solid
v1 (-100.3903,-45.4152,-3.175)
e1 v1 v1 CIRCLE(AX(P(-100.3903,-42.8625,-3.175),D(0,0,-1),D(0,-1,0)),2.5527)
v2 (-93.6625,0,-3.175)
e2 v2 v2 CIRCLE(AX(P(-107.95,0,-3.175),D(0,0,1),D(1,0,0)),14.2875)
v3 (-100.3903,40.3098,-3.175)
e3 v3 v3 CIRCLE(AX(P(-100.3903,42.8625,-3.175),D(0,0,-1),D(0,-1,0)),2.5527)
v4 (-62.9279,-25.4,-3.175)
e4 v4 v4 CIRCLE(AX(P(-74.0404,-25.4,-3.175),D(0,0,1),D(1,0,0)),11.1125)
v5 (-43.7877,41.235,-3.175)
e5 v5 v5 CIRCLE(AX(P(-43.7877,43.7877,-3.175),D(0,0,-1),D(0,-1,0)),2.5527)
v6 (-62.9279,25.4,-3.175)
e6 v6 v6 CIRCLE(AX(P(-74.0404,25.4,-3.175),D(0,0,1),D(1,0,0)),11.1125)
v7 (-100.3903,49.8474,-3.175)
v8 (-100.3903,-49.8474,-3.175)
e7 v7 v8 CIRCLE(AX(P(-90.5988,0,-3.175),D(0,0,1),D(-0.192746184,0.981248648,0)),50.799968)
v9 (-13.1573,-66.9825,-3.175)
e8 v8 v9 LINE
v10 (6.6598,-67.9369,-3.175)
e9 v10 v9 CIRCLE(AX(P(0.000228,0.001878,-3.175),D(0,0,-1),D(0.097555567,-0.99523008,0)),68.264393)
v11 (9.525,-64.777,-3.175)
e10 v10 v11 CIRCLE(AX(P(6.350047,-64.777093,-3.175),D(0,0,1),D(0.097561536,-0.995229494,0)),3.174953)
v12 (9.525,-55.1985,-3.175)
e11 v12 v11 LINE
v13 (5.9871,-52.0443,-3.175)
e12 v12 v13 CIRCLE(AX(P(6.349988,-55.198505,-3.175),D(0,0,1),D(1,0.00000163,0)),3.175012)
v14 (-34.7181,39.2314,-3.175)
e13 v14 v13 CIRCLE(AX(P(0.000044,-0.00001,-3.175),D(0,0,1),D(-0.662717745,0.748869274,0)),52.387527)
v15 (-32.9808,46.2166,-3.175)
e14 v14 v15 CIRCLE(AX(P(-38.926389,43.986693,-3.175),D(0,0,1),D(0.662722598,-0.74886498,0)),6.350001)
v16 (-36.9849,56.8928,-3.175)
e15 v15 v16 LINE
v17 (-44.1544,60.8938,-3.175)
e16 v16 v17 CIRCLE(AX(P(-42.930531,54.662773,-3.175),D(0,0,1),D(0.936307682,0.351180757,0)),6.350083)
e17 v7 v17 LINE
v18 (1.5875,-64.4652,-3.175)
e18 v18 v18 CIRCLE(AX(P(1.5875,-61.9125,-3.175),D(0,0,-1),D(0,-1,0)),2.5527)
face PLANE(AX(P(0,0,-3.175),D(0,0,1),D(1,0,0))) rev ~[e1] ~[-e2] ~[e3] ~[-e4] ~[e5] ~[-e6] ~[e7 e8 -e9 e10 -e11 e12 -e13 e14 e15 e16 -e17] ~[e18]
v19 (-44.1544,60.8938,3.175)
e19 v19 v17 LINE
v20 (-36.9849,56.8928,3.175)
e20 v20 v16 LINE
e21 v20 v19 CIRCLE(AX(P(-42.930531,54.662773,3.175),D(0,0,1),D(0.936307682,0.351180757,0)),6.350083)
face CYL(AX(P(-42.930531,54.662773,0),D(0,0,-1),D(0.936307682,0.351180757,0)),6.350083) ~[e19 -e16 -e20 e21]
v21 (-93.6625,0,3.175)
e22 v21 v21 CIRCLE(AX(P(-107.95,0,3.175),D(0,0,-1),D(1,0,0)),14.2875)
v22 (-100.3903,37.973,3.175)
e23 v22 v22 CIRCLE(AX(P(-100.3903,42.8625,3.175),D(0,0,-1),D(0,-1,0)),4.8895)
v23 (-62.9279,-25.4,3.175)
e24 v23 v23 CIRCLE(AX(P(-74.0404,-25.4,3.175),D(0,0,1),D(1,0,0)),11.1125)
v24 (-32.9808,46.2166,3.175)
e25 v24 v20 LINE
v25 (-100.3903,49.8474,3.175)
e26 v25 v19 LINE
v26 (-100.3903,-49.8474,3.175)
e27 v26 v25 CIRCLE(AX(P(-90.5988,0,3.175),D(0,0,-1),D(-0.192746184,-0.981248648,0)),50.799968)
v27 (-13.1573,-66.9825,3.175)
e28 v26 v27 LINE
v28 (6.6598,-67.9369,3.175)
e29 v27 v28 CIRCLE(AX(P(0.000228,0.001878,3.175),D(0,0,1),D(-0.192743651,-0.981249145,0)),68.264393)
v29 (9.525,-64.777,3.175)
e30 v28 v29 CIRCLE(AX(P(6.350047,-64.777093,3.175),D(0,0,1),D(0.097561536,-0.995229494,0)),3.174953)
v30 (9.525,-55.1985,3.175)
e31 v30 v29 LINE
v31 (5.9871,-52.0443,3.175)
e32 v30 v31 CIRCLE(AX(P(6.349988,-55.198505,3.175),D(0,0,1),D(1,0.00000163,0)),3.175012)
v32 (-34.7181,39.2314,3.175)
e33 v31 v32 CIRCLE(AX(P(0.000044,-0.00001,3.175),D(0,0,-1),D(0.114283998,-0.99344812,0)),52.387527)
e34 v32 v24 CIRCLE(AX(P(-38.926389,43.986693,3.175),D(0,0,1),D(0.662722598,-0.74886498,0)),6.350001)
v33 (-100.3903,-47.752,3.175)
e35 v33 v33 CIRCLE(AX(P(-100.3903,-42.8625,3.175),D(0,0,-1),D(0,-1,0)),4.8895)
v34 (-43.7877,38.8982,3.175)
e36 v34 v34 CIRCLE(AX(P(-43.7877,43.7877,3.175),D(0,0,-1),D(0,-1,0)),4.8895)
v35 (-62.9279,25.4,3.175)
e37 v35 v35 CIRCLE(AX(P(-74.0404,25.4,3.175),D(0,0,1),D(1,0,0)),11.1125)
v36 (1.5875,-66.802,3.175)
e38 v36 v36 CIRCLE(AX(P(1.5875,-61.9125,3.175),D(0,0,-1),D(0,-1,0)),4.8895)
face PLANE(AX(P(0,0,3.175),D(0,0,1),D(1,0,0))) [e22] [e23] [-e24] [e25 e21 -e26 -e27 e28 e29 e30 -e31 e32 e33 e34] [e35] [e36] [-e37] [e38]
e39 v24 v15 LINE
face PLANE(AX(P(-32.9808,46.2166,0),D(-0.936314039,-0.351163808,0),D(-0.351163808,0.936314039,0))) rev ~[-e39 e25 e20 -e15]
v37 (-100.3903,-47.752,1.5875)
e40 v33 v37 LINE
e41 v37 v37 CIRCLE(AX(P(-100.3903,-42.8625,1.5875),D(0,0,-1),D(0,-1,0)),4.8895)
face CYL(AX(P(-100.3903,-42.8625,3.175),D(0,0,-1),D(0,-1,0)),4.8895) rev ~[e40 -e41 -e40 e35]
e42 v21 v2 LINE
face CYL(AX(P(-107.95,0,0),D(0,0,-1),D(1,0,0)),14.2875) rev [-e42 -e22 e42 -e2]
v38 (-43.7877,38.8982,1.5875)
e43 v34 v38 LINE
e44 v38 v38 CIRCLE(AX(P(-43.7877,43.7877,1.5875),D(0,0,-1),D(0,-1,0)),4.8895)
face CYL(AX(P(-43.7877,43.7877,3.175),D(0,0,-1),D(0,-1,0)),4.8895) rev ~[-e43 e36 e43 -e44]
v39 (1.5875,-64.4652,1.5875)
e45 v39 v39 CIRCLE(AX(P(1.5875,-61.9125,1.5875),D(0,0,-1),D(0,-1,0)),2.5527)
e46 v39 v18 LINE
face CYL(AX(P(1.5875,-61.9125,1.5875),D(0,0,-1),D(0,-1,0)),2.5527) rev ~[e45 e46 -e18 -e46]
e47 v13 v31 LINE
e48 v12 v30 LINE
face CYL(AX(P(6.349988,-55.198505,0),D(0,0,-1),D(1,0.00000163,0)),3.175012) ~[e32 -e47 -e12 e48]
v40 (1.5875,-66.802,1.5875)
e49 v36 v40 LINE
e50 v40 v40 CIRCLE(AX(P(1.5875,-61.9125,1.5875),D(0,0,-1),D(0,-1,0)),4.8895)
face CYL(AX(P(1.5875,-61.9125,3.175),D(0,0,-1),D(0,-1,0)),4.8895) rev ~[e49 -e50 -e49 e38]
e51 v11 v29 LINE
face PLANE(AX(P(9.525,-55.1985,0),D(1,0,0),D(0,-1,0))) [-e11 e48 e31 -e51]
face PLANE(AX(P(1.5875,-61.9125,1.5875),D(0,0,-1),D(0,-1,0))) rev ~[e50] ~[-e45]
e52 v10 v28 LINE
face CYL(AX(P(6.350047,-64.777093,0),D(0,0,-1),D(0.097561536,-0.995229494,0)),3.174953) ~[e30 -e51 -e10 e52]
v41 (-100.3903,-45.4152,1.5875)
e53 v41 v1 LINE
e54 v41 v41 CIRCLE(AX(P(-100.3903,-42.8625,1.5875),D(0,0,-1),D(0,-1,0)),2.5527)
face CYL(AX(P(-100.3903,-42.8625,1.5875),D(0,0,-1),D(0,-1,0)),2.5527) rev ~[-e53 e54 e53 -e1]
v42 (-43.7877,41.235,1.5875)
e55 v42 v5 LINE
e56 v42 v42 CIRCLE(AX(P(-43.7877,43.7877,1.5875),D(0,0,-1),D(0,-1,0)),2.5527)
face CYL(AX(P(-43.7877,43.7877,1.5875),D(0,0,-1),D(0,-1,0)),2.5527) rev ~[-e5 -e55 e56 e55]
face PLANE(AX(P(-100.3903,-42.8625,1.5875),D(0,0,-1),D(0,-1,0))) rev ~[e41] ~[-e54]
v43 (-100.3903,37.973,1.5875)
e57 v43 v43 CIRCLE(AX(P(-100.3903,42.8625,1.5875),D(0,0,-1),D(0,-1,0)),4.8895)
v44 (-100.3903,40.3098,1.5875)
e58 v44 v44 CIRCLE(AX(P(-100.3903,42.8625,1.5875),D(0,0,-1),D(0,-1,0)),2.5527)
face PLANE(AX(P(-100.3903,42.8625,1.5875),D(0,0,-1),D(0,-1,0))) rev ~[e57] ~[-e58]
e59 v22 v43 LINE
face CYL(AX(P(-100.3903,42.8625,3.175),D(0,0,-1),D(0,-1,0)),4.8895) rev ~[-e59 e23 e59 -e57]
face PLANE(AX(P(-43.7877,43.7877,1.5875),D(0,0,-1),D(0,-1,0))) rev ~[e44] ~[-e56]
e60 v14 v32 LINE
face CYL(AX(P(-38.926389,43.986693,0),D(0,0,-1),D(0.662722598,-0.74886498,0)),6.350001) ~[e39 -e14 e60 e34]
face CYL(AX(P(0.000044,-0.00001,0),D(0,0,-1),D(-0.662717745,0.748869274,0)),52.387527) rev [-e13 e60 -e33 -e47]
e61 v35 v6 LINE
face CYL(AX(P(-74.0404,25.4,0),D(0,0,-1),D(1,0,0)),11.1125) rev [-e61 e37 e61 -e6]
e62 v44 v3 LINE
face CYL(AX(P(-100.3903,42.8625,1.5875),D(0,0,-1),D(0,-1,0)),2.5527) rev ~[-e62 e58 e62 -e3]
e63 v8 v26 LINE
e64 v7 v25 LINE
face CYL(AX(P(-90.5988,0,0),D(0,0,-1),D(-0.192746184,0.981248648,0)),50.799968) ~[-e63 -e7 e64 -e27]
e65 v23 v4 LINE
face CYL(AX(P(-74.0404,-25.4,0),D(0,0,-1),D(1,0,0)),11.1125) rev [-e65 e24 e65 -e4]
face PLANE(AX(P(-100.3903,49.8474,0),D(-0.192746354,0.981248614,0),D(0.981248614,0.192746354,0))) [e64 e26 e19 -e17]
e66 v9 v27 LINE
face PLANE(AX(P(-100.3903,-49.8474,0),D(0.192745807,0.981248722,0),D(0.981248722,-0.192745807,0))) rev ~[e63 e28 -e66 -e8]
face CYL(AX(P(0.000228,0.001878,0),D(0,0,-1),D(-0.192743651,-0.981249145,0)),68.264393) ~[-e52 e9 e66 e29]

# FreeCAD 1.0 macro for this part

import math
import FreeCAD as App
import Part
import Sketcher
from FreeCAD import Vector
Q = App.Units.Quantity

doc = App.newDocument("Part")
body = doc.addObject("PartDesign::Body", "Body")

# Sketch on XY plane
sketch1 = body.newObject("Sketcher::SketchObject", "Sketch")
sketch1.AttachmentSupport = (doc.getObject("XY_Plane"), [""])
sketch1.MapMode = "FlatFace"
sketch1.addGeometry([
    Part.LineSegment(Vector(-44.2, 60.9, 0), Vector(-100.4, 49.8, 0)),  # 0
    Part.ArcOfCircle(Part.Circle(Vector(-90.6, 0, 0), Vector(0, 0, 1), 50.8), math.radians(101), math.radians(259)),  # 1
    Part.LineSegment(Vector(-100.4, -49.8, 0), Vector(-13.2, -67, 0)),  # 2
    Part.ArcOfCircle(Part.Circle(Vector(0, 0, 0), Vector(0, 0, 1), 68.3), math.radians(-101.11), math.radians(-84.4)),  # 3
    Part.ArcOfCircle(Part.Circle(Vector(6.3, -64.8, 0), Vector(0, 0, 1), 3.2), math.radians(-84), math.radians(0)),  # 4
    Part.LineSegment(Vector(9.5, -64.8, 0), Vector(9.5, -55.2, 0)),  # 5
    Part.ArcOfCircle(Part.Circle(Vector(6.3, -55.2, 0), Vector(0, 0, 1), 3.2), math.radians(0), math.radians(97)),  # 6
    Part.ArcOfCircle(Part.Circle(Vector(0, 0, 0), Vector(0, 0, 1), 52.4), math.radians(132), math.radians(277)),  # 7
    Part.ArcOfCircle(Part.Circle(Vector(-38.9, 44, 0), Vector(0, 0, 1), 6.4), math.radians(-48), math.radians(21)),  # 8
    Part.LineSegment(Vector(-33, 46.2, 0), Vector(-37, 56.9, 0)),  # 9
    Part.ArcOfCircle(Part.Circle(Vector(-42.9, 54.7, 0), Vector(0, 0, 1), 6.4), math.radians(21), math.radians(101)),  # 10
    Part.Circle(Vector(-108, 0, 0), Vector(0, 0, 1), 14.3),  # 11
    Part.Circle(Vector(-74, 25.4, 0), Vector(0, 0, 1), 11.1),  # 12
    Part.Circle(Vector(-74, -25.4, 0), Vector(0, 0, 1), 11.1),  # 13
], False)
sketch1.addConstraint([
    Sketcher.Constraint("Tangent", 0, 2, 1, 1),
    Sketcher.Constraint("Tangent", 1, 2, 2, 1),
    Sketcher.Constraint("Tangent", 2, 2, 3, 1),
    Sketcher.Constraint("Tangent", 3, 2, 4, 1),
    Sketcher.Constraint("Tangent", 4, 2, 5, 1),
    Sketcher.Constraint("Tangent", 5, 2, 6, 1),
    Sketcher.Constraint("Tangent", 6, 2, 7, 2),
    Sketcher.Constraint("Tangent", 7, 1, 8, 1),
    Sketcher.Constraint("Tangent", 8, 2, 9, 1),
    Sketcher.Constraint("Tangent", 9, 2, 10, 1),
    Sketcher.Constraint("Tangent", 10, 2, 0, 1),
    Sketcher.Constraint("Vertical", 5),
    Sketcher.Constraint("Coincident", 7, 3, -1, 1),
    Sketcher.Constraint("Equal", 4, 6),
    Sketcher.Constraint("Equal", 8, 10),
    Sketcher.Constraint("Equal", 12, 13),
    Sketcher.Constraint("Symmetric", 12, 3, 13, 3, -1),
    Sketcher.Constraint("Symmetric", 0, 2, 1, 2, -1),
    Sketcher.Constraint("PointOnObject", 11, 3, -1),
    Sketcher.Constraint("Radius", 1, Q("2 in")),
    Sketcher.Constraint("Radius", 8, Q("0.25 in")),
    Sketcher.Constraint("Diameter", 11, Q("1.125 in")),
    Sketcher.Constraint("Diameter", 12, Q("0.875 in")),
    Sketcher.Constraint("Radius", 4, Q("0.125 in")),
    Sketcher.Constraint("DistanceY", 13, 3, 12, 3, Q("2 in")),
    Sketcher.Constraint("DistanceX", -1, 1, 4, 3, Q("0.25 in")),
    Sketcher.Constraint("DistanceX", 11, 3, -1, 1, Q("4.25 in")),
    Sketcher.Constraint("DistanceX", 3, 3, 4, 3, Q("0.25 in")),
    Sketcher.Constraint("Radius", 7, Q("2.0625 in")),
    Sketcher.Constraint("Distance", 2, Q("3.5 in")),
    Sketcher.Constraint("Radius", 3, Q("68.2644 mm")),
    Sketcher.Constraint("DistanceY", 5, 1, 5, 2, Q("0.3771 in")),
    Sketcher.Constraint("DistanceY", 3, 3, 10, 3, Q("2.152 in")),
    Sketcher.Constraint("DistanceY", 7, 1, 8, 2, Q("0.275 in")),
    Sketcher.Constraint("DistanceX", 1, 3, 12, 3, Q("0.6519 in")),
])
pad1 = body.newObject("PartDesign::Pad", "Pad")
pad1.Profile = sketch1
pad1.Length = Q("0.25 in")
pad1.Midplane = True

# Sketch on XY plane
sketch2 = body.newObject("Sketcher::SketchObject", "Sketch001")
sketch2.AttachmentSupport = (doc.getObject("XY_Plane"), [""])
sketch2.MapMode = "FlatFace"
sketch2.AttachmentOffset = App.Placement(Vector(0, 0, 0.125 * 25.4), App.Rotation())
sketch2.addGeometry([
    Part.Circle(Vector(1.6, 61.9, 0), Vector(0, 0, 1), 2.6),
    Part.Circle(Vector(1.6, -61.9, 0), Vector(0, 0, 1), 2.6),
], False)
sketch2.addConstraint([
    Sketcher.Constraint("Equal", 0, 1),
    Sketcher.Constraint("Symmetric", 0, 3, 1, 3, -1),
    Sketcher.Constraint("Diameter", 0, Q("0.201 in")),
    Sketcher.Constraint("DistanceX", -1, 1, 0, 3, Q("0.0625 in")),
    Sketcher.Constraint("DistanceY", -1, 1, 0, 3, Q("2.4375 in")),
])
doc.recompute()
hole = body.newObject("PartDesign::Hole", "Hole")
hole.Profile = sketch2
hole.ThreadType = "None"
hole.Diameter = Q("0.201 in")
hole.DepthType = "ThroughAll"
hole.HoleCutType = "Counterbore"
hole.HoleCutDiameter = Q("0.385 in")
hole.HoleCutDepth = Q("0.0625 in")

# Sketch on XY plane
sketch3 = body.newObject("Sketcher::SketchObject", "Sketch002")
sketch3.AttachmentSupport = (doc.getObject("XY_Plane"), [""])
sketch3.MapMode = "FlatFace"
sketch3.AttachmentOffset = App.Placement(Vector(0, 0, 0.125 * 25.4), App.Rotation())
sketch3.addGeometry([
    Part.Circle(Vector(-100.4, 42.9, 0), Vector(0, 0, 1), 2.6),
    Part.Circle(Vector(-100.4, -42.9, 0), Vector(0, 0, 1), 2.6),
], False)
sketch3.addConstraint([
    Sketcher.Constraint("Equal", 0, 1),
    Sketcher.Constraint("Symmetric", 0, 3, 1, 3, -1),
    Sketcher.Constraint("Diameter", 0, Q("0.201 in")),
    Sketcher.Constraint("DistanceY", -1, 1, 0, 3, Q("1.6875 in")),
    Sketcher.Constraint("DistanceX", 0, 3, -1, 1, Q("100.3903 mm")),
])
doc.recompute()
hole2 = body.newObject("PartDesign::Hole", "Hole001")
hole2.Profile = sketch3
hole2.ThreadType = "None"
hole2.Diameter = Q("0.201 in")
hole2.DepthType = "ThroughAll"
hole2.HoleCutType = "Counterbore"
hole2.HoleCutDiameter = Q("0.385 in")
hole2.HoleCutDepth = Q("0.0625 in")

# Sketch on XY plane
sketch4 = body.newObject("Sketcher::SketchObject", "Sketch003")
sketch4.AttachmentSupport = (doc.getObject("XY_Plane"), [""])
sketch4.MapMode = "FlatFace"
sketch4.AttachmentOffset = App.Placement(Vector(0, 0, 0.125 * 25.4), App.Rotation())
sketch4.addGeometry(Part.Circle(Vector(-43.8, 43.8, 0), Vector(0, 0, 1), 2.6), False)
sketch4.addConstraint([
    Sketcher.Constraint("Diameter", 0, Q("0.201 in")),
    Sketcher.Constraint("DistanceX", 0, 3, -1, 1, Q("43.7877 mm")),
    Sketcher.Constraint("DistanceY", -1, 1, 0, 3, Q("43.7877 mm")),
])
doc.recompute()
hole3 = body.newObject("PartDesign::Hole", "Hole002")
hole3.Profile = sketch4
hole3.ThreadType = "None"
hole3.Diameter = Q("0.201 in")
hole3.DepthType = "ThroughAll"
hole3.HoleCutType = "Counterbore"
hole3.HoleCutDiameter = Q("0.385 in")
hole3.HoleCutDepth = Q("0.0625 in")

doc.recompute()
